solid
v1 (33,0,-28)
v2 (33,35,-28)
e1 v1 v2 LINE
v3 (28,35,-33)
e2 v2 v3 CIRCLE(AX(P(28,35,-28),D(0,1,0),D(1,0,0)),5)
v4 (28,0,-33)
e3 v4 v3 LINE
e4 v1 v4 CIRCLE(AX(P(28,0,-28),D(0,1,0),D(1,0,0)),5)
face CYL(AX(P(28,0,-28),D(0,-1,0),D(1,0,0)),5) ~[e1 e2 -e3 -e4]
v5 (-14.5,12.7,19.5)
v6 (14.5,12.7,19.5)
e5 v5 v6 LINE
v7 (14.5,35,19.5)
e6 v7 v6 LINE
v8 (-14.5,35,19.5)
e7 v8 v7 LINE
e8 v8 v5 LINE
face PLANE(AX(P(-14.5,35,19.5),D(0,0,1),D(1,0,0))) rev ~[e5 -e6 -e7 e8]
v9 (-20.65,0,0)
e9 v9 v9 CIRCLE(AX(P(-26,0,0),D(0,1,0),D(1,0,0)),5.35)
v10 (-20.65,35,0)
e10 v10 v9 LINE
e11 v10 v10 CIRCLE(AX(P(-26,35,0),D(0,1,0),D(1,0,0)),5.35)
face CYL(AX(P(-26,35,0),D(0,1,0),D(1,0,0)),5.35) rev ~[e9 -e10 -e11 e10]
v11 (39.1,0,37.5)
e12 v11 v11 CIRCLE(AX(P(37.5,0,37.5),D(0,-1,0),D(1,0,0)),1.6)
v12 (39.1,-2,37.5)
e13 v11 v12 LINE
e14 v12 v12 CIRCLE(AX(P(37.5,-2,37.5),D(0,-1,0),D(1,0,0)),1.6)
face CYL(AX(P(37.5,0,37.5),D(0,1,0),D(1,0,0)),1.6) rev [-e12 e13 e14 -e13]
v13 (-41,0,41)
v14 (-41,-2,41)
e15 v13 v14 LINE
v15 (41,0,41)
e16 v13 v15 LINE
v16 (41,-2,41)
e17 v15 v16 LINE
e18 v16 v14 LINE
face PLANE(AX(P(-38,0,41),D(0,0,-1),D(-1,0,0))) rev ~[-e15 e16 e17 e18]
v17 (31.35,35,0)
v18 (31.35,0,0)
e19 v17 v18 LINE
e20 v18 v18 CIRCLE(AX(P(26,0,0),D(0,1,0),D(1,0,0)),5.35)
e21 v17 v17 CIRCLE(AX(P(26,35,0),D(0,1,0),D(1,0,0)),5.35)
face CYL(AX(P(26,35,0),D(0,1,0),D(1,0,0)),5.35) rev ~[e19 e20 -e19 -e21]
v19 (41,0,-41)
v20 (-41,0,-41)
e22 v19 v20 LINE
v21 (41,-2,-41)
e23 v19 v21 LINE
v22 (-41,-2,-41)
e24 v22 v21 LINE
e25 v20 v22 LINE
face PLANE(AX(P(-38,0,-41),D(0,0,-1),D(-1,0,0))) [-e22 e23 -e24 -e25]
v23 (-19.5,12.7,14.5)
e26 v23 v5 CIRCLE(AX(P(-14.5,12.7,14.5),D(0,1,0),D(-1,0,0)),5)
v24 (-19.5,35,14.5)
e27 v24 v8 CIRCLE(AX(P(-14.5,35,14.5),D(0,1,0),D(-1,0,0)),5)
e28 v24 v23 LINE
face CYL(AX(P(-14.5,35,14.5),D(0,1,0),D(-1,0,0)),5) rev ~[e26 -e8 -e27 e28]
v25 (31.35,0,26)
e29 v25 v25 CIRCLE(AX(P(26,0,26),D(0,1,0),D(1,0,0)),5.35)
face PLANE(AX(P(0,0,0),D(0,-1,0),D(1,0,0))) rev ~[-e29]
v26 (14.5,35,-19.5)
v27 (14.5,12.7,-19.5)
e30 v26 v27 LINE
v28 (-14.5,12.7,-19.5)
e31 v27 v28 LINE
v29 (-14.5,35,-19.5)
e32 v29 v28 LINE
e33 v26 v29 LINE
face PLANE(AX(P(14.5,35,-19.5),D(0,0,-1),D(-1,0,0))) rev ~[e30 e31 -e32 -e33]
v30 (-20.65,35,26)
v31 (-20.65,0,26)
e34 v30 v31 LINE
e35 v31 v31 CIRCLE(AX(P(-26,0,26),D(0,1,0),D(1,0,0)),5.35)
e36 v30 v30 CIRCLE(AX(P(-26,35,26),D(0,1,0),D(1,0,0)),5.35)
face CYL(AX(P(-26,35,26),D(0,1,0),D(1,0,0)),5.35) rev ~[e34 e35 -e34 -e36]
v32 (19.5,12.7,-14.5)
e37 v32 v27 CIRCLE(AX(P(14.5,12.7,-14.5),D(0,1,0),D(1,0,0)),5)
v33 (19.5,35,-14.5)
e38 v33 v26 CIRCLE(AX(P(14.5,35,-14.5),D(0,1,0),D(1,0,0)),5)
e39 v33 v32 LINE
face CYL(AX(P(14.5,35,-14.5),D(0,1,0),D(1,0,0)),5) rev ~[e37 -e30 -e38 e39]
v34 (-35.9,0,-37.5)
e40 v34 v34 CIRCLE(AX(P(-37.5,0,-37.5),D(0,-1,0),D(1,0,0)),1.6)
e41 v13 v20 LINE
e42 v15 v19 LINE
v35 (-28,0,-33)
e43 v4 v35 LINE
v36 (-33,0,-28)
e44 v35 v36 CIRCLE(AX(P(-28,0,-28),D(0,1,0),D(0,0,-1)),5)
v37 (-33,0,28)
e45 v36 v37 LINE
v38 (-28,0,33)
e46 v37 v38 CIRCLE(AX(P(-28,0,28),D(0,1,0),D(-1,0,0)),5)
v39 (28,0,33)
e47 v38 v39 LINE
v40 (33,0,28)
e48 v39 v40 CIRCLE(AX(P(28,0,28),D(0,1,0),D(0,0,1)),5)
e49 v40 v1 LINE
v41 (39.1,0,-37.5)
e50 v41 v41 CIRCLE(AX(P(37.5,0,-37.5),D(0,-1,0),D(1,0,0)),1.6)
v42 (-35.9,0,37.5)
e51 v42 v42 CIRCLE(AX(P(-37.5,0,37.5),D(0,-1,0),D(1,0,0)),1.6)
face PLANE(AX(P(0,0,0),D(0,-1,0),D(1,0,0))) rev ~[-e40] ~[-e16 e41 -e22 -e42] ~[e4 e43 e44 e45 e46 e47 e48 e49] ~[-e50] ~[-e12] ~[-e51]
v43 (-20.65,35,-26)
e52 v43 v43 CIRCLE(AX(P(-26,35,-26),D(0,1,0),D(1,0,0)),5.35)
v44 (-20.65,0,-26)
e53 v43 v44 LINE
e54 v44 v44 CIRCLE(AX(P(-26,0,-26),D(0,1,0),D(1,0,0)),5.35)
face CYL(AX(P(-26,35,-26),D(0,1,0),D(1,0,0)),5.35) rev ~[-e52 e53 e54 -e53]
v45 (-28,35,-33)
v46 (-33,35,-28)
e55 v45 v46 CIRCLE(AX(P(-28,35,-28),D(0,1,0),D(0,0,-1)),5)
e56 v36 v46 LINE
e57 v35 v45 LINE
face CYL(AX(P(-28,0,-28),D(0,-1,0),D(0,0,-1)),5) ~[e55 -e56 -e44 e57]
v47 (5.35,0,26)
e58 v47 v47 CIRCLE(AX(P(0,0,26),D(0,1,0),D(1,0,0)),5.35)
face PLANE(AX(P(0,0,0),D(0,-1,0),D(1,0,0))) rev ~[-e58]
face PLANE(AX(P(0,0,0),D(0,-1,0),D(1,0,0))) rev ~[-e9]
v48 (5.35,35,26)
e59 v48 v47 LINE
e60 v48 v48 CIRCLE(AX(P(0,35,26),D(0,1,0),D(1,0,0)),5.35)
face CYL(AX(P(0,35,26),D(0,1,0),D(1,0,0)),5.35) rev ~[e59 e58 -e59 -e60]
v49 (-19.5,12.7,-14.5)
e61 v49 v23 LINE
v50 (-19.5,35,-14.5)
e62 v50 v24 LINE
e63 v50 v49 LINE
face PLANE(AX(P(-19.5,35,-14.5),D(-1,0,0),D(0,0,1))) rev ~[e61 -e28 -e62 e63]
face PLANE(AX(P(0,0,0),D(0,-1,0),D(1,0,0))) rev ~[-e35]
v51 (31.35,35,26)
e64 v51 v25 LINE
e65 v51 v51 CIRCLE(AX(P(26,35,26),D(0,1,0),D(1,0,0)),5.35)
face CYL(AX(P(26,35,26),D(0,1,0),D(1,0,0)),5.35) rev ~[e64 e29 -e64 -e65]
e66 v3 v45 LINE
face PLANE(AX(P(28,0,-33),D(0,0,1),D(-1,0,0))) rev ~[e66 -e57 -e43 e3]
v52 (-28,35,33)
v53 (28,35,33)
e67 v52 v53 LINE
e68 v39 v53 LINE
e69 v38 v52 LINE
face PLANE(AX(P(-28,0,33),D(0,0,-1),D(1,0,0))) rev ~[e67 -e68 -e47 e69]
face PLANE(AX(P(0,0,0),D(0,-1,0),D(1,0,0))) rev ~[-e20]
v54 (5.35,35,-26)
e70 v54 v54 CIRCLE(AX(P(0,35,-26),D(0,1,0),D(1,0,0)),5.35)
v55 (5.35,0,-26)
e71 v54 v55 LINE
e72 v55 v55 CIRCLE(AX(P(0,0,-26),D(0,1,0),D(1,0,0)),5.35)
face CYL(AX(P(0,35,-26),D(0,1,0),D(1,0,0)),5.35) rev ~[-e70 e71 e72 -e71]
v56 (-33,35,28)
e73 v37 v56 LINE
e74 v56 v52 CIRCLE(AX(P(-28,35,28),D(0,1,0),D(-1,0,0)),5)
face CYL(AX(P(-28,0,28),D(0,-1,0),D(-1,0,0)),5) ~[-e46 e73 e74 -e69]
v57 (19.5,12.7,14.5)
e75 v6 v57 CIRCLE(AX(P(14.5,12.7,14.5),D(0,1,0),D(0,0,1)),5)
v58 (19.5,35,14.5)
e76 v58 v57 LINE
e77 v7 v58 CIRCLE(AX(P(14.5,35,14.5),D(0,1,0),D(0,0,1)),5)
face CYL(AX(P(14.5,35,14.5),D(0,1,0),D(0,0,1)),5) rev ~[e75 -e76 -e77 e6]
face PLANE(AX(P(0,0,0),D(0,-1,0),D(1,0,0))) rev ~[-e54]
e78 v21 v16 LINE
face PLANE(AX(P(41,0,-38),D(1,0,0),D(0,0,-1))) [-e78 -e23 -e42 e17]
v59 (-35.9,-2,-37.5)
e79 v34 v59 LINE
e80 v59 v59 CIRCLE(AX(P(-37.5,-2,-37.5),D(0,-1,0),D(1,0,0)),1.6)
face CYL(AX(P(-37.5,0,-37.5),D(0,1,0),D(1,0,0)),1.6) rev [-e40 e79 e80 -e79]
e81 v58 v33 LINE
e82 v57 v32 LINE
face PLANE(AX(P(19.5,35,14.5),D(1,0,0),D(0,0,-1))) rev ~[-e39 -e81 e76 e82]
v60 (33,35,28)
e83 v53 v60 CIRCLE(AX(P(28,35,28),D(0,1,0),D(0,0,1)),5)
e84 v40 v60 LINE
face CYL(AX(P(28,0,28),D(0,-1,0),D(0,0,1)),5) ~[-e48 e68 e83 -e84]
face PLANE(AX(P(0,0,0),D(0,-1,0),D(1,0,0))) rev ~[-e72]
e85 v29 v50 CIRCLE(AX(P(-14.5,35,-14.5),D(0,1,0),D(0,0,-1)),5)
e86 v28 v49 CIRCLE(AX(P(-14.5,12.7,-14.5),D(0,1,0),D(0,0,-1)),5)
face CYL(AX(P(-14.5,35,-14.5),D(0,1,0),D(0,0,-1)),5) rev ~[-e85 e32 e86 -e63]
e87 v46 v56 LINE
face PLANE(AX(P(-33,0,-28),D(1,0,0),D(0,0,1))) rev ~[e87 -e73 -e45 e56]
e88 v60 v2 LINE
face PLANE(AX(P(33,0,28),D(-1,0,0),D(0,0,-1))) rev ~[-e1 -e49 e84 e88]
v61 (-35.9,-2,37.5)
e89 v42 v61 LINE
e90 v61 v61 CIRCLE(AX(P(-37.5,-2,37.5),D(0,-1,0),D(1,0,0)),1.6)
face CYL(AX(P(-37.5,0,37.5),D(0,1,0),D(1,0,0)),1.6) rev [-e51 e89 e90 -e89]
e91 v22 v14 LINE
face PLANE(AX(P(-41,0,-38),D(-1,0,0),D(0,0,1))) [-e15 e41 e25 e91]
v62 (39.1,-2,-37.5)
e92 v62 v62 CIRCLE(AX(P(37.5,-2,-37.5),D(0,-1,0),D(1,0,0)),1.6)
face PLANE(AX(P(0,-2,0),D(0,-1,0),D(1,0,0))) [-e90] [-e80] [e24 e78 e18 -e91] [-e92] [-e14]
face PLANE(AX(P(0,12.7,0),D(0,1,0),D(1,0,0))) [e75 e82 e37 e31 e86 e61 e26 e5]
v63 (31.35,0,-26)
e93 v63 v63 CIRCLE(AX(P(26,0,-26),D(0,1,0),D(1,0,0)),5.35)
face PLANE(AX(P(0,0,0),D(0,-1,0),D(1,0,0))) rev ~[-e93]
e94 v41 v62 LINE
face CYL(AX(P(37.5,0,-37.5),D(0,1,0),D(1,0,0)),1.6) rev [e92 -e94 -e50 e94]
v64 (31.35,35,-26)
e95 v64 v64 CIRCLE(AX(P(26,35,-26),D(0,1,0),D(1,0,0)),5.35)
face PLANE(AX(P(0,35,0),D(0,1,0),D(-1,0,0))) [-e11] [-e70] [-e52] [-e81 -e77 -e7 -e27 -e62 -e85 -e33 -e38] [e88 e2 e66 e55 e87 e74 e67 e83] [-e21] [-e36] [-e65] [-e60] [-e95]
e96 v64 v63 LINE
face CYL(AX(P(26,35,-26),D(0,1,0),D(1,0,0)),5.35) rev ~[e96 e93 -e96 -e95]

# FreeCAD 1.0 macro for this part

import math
import FreeCAD as App
import Part
import Sketcher
from FreeCAD import Vector

doc = App.newDocument("Part")
params = doc.addObject("Spreadsheet::Sheet", "Params")
for row, (alias, value) in enumerate([
    ("sketch1_radius", "5 mm"),
    ("sketch1_width", "56 mm"),
    ("pad1_length", "35 mm"),
    ("sketch2_diameter", "10.7 mm"),
    ("pocket1_length", "35 mm"),
    ("sketch3_radius", "5 mm"),
    ("sketch3_width", "29 mm"),
    ("pocket2_length", "22.3 mm"),
    ("sketch4_diameter", "3.2 mm"),
    ("sketch4_width", "82 mm"),
    ("pad2_length", "2 mm"),
], start=1):
    params.set(f"A{row}", alias)
    params.set(f"B{row}", "=" + value)
    params.setAlias(f"B{row}", alias)

body = doc.addObject("PartDesign::Body", "Body")

sketch1 = body.newObject("Sketcher::SketchObject", "Sketch")
sketch1.AttachmentSupport = (doc.getObject("XZ_Plane"), [""])
sketch1.MapMode = "FlatFace"
sketch1.addGeometry([
    Part.ArcOfCircle(Part.Circle(Vector(-28, 28, 0), Vector(0, 0, 1), 5), math.radians(90), math.radians(180)),
    Part.LineSegment(Vector(-28, 33, 0), Vector(28, 33, 0)),
    Part.ArcOfCircle(Part.Circle(Vector(28, 28, 0), Vector(0, 0, 1), 5), math.radians(0), math.radians(90)),
    Part.LineSegment(Vector(33, 28, 0), Vector(33, -28, 0)),
    Part.ArcOfCircle(Part.Circle(Vector(28, -28, 0), Vector(0, 0, 1), 5), math.radians(-90), math.radians(0)),
    Part.LineSegment(Vector(28, -33, 0), Vector(-28, -33, 0)),
    Part.ArcOfCircle(Part.Circle(Vector(-28, -28, 0), Vector(0, 0, 1), 5), math.radians(180), math.radians(270)),
    Part.LineSegment(Vector(-33, -28, 0), Vector(-33, 28, 0)),
], False)
sketch1.addConstraint([
    Sketcher.Constraint("Tangent", 0, 1, 1, 1),
    Sketcher.Constraint("Tangent", 1, 2, 2, 2),
    Sketcher.Constraint("Tangent", 2, 1, 3, 1),
    Sketcher.Constraint("Tangent", 3, 2, 4, 2),
    Sketcher.Constraint("Tangent", 4, 1, 5, 1),
    Sketcher.Constraint("Tangent", 5, 2, 6, 2),
    Sketcher.Constraint("Tangent", 6, 1, 7, 1),
    Sketcher.Constraint("Tangent", 7, 2, 0, 2),
    Sketcher.Constraint("Horizontal", 1),
    Sketcher.Constraint("Vertical", 3),
    Sketcher.Constraint("Horizontal", 5),
    Sketcher.Constraint("Vertical", 7),
    Sketcher.Constraint("Equal", 0, 2),
    Sketcher.Constraint("Equal", 2, 4),
    Sketcher.Constraint("Equal", 4, 6),
    Sketcher.Constraint("Symmetric", 0, 3, 4, 3, -1, 1),
    Sketcher.Constraint("Equal", 5, 3),
    Sketcher.Constraint("Radius", 0, 5.0),
    Sketcher.Constraint("DistanceX", 1, 1, 1, 2, 56.0),
])
sketch1.setExpression("Constraints[17]", "Params.sketch1_radius")
sketch1.setExpression("Constraints[18]", "Params.sketch1_width")
pad1 = body.newObject("PartDesign::Pad", "Pad")
pad1.Profile = sketch1
pad1.setExpression("Length", "Params.pad1_length")
pad1.Reversed = True

sketch2 = body.newObject("Sketcher::SketchObject", "Sketch001")
sketch2.AttachmentSupport = (doc.getObject("XZ_Plane"), [""])
sketch2.MapMode = "FlatFace"
sketch2.AttachmentOffset = App.Placement(Vector(0, 0, -35), App.Rotation())
sketch2.addGeometry([
    Part.Circle(Vector(26, -26, 0), Vector(0, 0, 1), 5.35),
    Part.Circle(Vector(0, -26, 0), Vector(0, 0, 1), 5.35),
    Part.Circle(Vector(-26, -26, 0), Vector(0, 0, 1), 5.35),
    Part.Circle(Vector(26, 0, 0), Vector(0, 0, 1), 5.35),
    Part.Circle(Vector(-26, 0, 0), Vector(0, 0, 1), 5.35),
    Part.Circle(Vector(26, 26, 0), Vector(0, 0, 1), 5.35),
    Part.Circle(Vector(0, 26, 0), Vector(0, 0, 1), 5.35),
    Part.Circle(Vector(-26, 26, 0), Vector(0, 0, 1), 5.35),
], False)
sketch2.addConstraint([
    Sketcher.Constraint("Equal", 0, 1),
    Sketcher.Constraint("Equal", 1, 2),
    Sketcher.Constraint("Equal", 2, 3),
    Sketcher.Constraint("Equal", 3, 4),
    Sketcher.Constraint("Equal", 4, 5),
    Sketcher.Constraint("Equal", 5, 6),
    Sketcher.Constraint("Equal", 6, 7),
    Sketcher.Constraint("Symmetric", 3, 3, 4, 3, -1, 1),
    Sketcher.Constraint("Symmetric", 2, 3, 5, 3, -1, 1),
    Sketcher.Constraint("Symmetric", 1, 3, 6, 3, -1, 1),
    Sketcher.Constraint("Symmetric", 0, 3, 7, 3, -1, 1),
    Sketcher.Constraint("Symmetric", 0, 3, 2, 3, -2),
    Sketcher.Constraint("PointOnObject", 1, 3, -2),
    Sketcher.Constraint("PointOnObject", 3, 3, -1),
    Sketcher.Constraint("Horizontal", 0, 3, 1, 3),
    Sketcher.Constraint("Vertical", 0, 3, 3, 3),
    Sketcher.Constraint("Diameter", 0, 10.7),
    Sketcher.Constraint("DistanceX", -1, 1, 0, 3, 26.0),
    Sketcher.Constraint("DistanceY", 0, 3, -1, 1, 26.0),
])
sketch2.setExpression("Constraints[16]", "Params.sketch2_diameter")
pocket1 = body.newObject("PartDesign::Pocket", "Pocket")
pocket1.Profile = sketch2
pocket1.setExpression("Length", "Params.pocket1_length")
pocket1.Reversed = True

sketch3 = body.newObject("Sketcher::SketchObject", "Sketch002")
sketch3.AttachmentSupport = (doc.getObject("XZ_Plane"), [""])
sketch3.MapMode = "FlatFace"
sketch3.AttachmentOffset = App.Placement(Vector(0, 0, -35), App.Rotation())
sketch3.addGeometry([
    Part.ArcOfCircle(Part.Circle(Vector(-14.5, 14.5, 0), Vector(0, 0, 1), 5), math.radians(90), math.radians(180)),
    Part.LineSegment(Vector(-14.5, 19.5, 0), Vector(14.5, 19.5, 0)),
    Part.ArcOfCircle(Part.Circle(Vector(14.5, 14.5, 0), Vector(0, 0, 1), 5), math.radians(0), math.radians(90)),
    Part.LineSegment(Vector(19.5, 14.5, 0), Vector(19.5, -14.5, 0)),
    Part.ArcOfCircle(Part.Circle(Vector(14.5, -14.5, 0), Vector(0, 0, 1), 5), math.radians(-90), math.radians(0)),
    Part.LineSegment(Vector(14.5, -19.5, 0), Vector(-14.5, -19.5, 0)),
    Part.ArcOfCircle(Part.Circle(Vector(-14.5, -14.5, 0), Vector(0, 0, 1), 5), math.radians(180), math.radians(270)),
    Part.LineSegment(Vector(-19.5, -14.5, 0), Vector(-19.5, 14.5, 0)),
], False)
sketch3.addConstraint([
    Sketcher.Constraint("Tangent", 0, 1, 1, 1),
    Sketcher.Constraint("Tangent", 1, 2, 2, 2),
    Sketcher.Constraint("Tangent", 2, 1, 3, 1),
    Sketcher.Constraint("Tangent", 3, 2, 4, 2),
    Sketcher.Constraint("Tangent", 4, 1, 5, 1),
    Sketcher.Constraint("Tangent", 5, 2, 6, 2),
    Sketcher.Constraint("Tangent", 6, 1, 7, 1),
    Sketcher.Constraint("Tangent", 7, 2, 0, 2),
    Sketcher.Constraint("Horizontal", 1),
    Sketcher.Constraint("Vertical", 3),
    Sketcher.Constraint("Horizontal", 5),
    Sketcher.Constraint("Vertical", 7),
    Sketcher.Constraint("Equal", 0, 2),
    Sketcher.Constraint("Equal", 2, 4),
    Sketcher.Constraint("Equal", 4, 6),
    Sketcher.Constraint("Symmetric", 0, 3, 4, 3, -1, 1),
    Sketcher.Constraint("Equal", 5, 3),
    Sketcher.Constraint("Radius", 0, 5.0),
    Sketcher.Constraint("DistanceX", 1, 1, 1, 2, 29.0),
])
sketch3.setExpression("Constraints[17]", "Params.sketch3_radius")
sketch3.setExpression("Constraints[18]", "Params.sketch3_width")
pocket2 = body.newObject("PartDesign::Pocket", "Pocket001")
pocket2.Profile = sketch3
pocket2.setExpression("Length", "Params.pocket2_length")
pocket2.Reversed = True

sketch4 = body.newObject("Sketcher::SketchObject", "Sketch003")
sketch4.AttachmentSupport = (doc.getObject("XZ_Plane"), [""])
sketch4.MapMode = "FlatFace"
sketch4.addGeometry([
    Part.LineSegment(Vector(-41, 41, 0), Vector(-41, -41, 0)),
    Part.LineSegment(Vector(-41, -41, 0), Vector(41, -41, 0)),
    Part.LineSegment(Vector(41, -41, 0), Vector(41, 41, 0)),
    Part.LineSegment(Vector(41, 41, 0), Vector(-41, 41, 0)),
    Part.Circle(Vector(-37.5, -37.5, 0), Vector(0, 0, 1), 1.6),
    Part.Circle(Vector(37.5, -37.5, 0), Vector(0, 0, 1), 1.6),
    Part.Circle(Vector(-37.5, 37.5, 0), Vector(0, 0, 1), 1.6),
    Part.Circle(Vector(37.5, 37.5, 0), Vector(0, 0, 1), 1.6),
], False)
sketch4.addConstraint([
    Sketcher.Constraint("Coincident", 0, 2, 1, 1),
    Sketcher.Constraint("Coincident", 1, 2, 2, 1),
    Sketcher.Constraint("Coincident", 2, 2, 3, 1),
    Sketcher.Constraint("Coincident", 3, 2, 0, 1),
    Sketcher.Constraint("Vertical", 0),
    Sketcher.Constraint("Horizontal", 1),
    Sketcher.Constraint("Vertical", 2),
    Sketcher.Constraint("Horizontal", 3),
    Sketcher.Constraint("Equal", 4, 5),
    Sketcher.Constraint("Equal", 5, 6),
    Sketcher.Constraint("Equal", 6, 7),
    Sketcher.Constraint("Symmetric", 5, 3, 6, 3, -1, 1),
    Sketcher.Constraint("Symmetric", 4, 3, 7, 3, -1, 1),
    Sketcher.Constraint("Symmetric", 0, 2, 2, 2, -1, 1),
    Sketcher.Constraint("Symmetric", 4, 3, 5, 3, -2),
    Sketcher.Constraint("Equal", 3, 0),
    Sketcher.Constraint("Diameter", 4, 3.2),
    Sketcher.Constraint("DistanceX", 1, 1, 1, 2, 82.0),
    Sketcher.Constraint("DistanceX", 4, 3, 5, 3, 75.0),
    Sketcher.Constraint("DistanceY", 4, 3, 6, 3, 75.0),
])
sketch4.setExpression("Constraints[16]", "Params.sketch4_diameter")
sketch4.setExpression("Constraints[17]", "Params.sketch4_width")
pad2 = body.newObject("PartDesign::Pad", "Pad001")
pad2.Profile = sketch4
pad2.setExpression("Length", "Params.pad2_length")

doc.recompute()
